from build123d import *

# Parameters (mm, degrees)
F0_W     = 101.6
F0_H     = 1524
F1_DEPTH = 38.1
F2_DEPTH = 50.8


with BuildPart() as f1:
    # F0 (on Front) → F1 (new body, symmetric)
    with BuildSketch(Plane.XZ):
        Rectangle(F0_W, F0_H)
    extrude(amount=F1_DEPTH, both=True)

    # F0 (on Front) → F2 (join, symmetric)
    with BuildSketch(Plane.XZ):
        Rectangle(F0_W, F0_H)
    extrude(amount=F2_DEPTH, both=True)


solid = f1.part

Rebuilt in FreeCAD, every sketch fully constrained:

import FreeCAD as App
import Part
import Sketcher
from FreeCAD import Vector
Q = App.Units.Quantity

doc = App.newDocument("Part")
params = doc.addObject("Spreadsheet::Sheet", "Params")
for row, (alias, value) in enumerate([
    ("sketch1_width", "4 in"),
    ("sketch1_height", "60 in"),
    ("pad1_length", "3 in"),
    ("sketch2_width", "4 in"),
    ("sketch2_height", "60 in"),
    ("pad2_length", "4 in"),
], start=1):
    params.set(f"A{row}", alias)
    params.set(f"B{row}", "=" + value)
    params.setAlias(f"B{row}", alias)

body = doc.addObject("PartDesign::Body", "Body")

# Sketch on XZ plane
sketch1 = body.newObject("Sketcher::SketchObject", "Sketch")
sketch1.AttachmentSupport = (doc.getObject("XZ_Plane"), [""])
sketch1.MapMode = "FlatFace"
sketch1.addGeometry([
    Part.LineSegment(Vector(-51, 762, 0), Vector(-51, -762, 0)),
    Part.LineSegment(Vector(-51, -762, 0), Vector(51, -762, 0)),
    Part.LineSegment(Vector(51, -762, 0), Vector(51, 762, 0)),
    Part.LineSegment(Vector(51, 762, 0), Vector(-51, 762, 0)),
], False)
sketch1.addConstraint([
    Sketcher.Constraint("Coincident", 0, 2, 1, 1),
    Sketcher.Constraint("Coincident", 1, 2, 2, 1),
    Sketcher.Constraint("Coincident", 2, 2, 3, 1),
    Sketcher.Constraint("Coincident", 3, 2, 0, 1),
    Sketcher.Constraint("Vertical", 0),
    Sketcher.Constraint("Horizontal", 1),
    Sketcher.Constraint("Vertical", 2),
    Sketcher.Constraint("Horizontal", 3),
    Sketcher.Constraint("Symmetric", 0, 2, 2, 2, -1, 1),
    Sketcher.Constraint("DistanceX", 1, 1, 1, 2, Q("4 in")),
    Sketcher.Constraint("DistanceY", 0, 2, 0, 1, Q("60 in")),
])
sketch1.setExpression("Constraints[9]", "Params.sketch1_width")
sketch1.setExpression("Constraints[10]", "Params.sketch1_height")
pad1 = body.newObject("PartDesign::Pad", "Pad")
pad1.Profile = sketch1
pad1.setExpression("Length", "Params.pad1_length")
pad1.Midplane = True

# Sketch on XZ plane
sketch2 = body.newObject("Sketcher::SketchObject", "Sketch001")
sketch2.AttachmentSupport = (doc.getObject("XZ_Plane"), [""])
sketch2.MapMode = "FlatFace"
sketch2.addGeometry([
    Part.LineSegment(Vector(-51, 762, 0), Vector(-51, -762, 0)),
    Part.LineSegment(Vector(-51, -762, 0), Vector(51, -762, 0)),
    Part.LineSegment(Vector(51, -762, 0), Vector(51, 762, 0)),
    Part.LineSegment(Vector(51, 762, 0), Vector(-51, 762, 0)),
], False)
sketch2.addConstraint([
    Sketcher.Constraint("Coincident", 0, 2, 1, 1),
    Sketcher.Constraint("Coincident", 1, 2, 2, 1),
    Sketcher.Constraint("Coincident", 2, 2, 3, 1),
    Sketcher.Constraint("Coincident", 3, 2, 0, 1),
    Sketcher.Constraint("Vertical", 0),
    Sketcher.Constraint("Horizontal", 1),
    Sketcher.Constraint("Vertical", 2),
    Sketcher.Constraint("Horizontal", 3),
    Sketcher.Constraint("Symmetric", 0, 2, 2, 2, -1, 1),
    Sketcher.Constraint("DistanceX", 1, 1, 1, 2, Q("4 in")),
    Sketcher.Constraint("DistanceY", 0, 2, 0, 1, Q("60 in")),
])
sketch2.setExpression("Constraints[9]", "Params.sketch2_width")
sketch2.setExpression("Constraints[10]", "Params.sketch2_height")
pad2 = body.newObject("PartDesign::Pad", "Pad001")
pad2.Profile = sketch2
pad2.setExpression("Length", "Params.pad2_length")
pad2.Midplane = True

doc.recompute()
